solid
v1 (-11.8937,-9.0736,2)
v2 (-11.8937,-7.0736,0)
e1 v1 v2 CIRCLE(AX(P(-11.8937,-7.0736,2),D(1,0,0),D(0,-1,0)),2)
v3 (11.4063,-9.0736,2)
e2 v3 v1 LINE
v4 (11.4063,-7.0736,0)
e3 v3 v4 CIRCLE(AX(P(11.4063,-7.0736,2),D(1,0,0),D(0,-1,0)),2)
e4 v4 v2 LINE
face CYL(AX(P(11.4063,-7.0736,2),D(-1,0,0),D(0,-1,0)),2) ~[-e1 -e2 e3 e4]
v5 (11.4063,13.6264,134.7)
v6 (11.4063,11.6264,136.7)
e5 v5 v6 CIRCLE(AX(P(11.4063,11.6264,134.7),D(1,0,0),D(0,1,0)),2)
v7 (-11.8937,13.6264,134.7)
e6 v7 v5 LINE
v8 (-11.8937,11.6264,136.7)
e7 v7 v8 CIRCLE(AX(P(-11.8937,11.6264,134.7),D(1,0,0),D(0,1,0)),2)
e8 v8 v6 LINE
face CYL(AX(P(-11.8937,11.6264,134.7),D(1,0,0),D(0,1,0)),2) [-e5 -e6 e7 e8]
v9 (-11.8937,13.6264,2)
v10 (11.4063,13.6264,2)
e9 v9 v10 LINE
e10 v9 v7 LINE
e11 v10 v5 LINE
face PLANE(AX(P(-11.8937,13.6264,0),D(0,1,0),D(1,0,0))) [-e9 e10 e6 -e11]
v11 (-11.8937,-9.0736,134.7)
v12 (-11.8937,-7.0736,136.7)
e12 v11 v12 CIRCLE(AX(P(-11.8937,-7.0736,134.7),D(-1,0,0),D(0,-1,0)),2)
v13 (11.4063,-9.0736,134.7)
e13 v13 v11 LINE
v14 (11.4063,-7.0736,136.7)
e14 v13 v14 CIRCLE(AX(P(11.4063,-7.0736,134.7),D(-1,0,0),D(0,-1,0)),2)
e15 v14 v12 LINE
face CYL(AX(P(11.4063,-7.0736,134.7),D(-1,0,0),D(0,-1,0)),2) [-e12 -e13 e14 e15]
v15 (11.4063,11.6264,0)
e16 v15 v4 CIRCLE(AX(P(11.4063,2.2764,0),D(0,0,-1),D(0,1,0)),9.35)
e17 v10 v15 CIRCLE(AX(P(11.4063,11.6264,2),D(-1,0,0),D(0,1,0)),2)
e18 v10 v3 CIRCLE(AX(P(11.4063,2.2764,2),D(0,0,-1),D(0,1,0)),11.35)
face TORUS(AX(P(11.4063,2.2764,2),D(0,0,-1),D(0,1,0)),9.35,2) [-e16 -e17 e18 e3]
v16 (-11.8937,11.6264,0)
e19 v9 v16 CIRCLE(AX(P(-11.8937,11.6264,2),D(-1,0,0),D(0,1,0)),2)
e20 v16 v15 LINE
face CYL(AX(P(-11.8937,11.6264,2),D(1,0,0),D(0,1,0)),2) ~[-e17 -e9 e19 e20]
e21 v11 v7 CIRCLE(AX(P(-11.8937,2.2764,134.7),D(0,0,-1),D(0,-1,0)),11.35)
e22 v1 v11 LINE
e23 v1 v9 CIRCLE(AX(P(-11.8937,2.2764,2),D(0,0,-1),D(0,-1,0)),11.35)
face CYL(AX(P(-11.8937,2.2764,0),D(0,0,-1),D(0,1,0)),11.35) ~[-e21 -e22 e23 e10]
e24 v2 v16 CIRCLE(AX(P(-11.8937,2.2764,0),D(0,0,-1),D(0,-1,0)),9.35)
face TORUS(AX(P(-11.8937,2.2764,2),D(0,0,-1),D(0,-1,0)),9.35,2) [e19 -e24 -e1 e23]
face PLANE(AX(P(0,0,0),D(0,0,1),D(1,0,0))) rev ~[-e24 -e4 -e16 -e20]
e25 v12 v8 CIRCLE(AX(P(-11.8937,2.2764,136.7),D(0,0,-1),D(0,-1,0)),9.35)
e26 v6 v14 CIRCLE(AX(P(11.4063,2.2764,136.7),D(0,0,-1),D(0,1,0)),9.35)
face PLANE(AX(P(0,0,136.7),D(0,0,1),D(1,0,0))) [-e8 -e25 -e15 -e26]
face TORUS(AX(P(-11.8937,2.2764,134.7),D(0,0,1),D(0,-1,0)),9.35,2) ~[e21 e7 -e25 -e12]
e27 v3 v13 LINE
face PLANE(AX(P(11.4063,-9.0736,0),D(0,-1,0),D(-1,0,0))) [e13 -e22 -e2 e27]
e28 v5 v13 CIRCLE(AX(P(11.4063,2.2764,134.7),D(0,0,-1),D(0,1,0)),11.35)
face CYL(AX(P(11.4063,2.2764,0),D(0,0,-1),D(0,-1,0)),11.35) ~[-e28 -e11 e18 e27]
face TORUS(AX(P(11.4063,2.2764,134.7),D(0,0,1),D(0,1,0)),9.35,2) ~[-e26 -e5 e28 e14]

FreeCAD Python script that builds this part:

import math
import FreeCAD as App
import Part
import Sketcher


def edges_at(feature, points):
    """Names of the edges that pass closest to the given points."""
    edges = feature.Shape.Edges
    near = lambda p: min(range(len(edges)), key=lambda i: edges[i].distToShape(Part.Vertex(*p))[0])
    return sorted({f"Edge{near(p) + 1}" for p in points})

doc = App.newDocument("Part")
body = doc.addObject("PartDesign::Body", "Body")

# Sketch on XY plane
sketch1 = body.newObject("Sketcher::SketchObject", "Sketch")
sketch1.AttachmentSupport = (doc.getObject("XY_Plane"), [""])
sketch1.MapMode = "FlatFace"
sketch1.addGeometry(Part.LineSegment(App.Vector(11.4063, 13.6264, 0), App.Vector(-11.8937, 13.6264, 0)), False)
sketch1.addGeometry(Part.ArcOfCircle(Part.Circle(App.Vector(-11.8937, 2.2764, 0), App.Vector(0, 0, 1), 11.35), math.radians(90), math.radians(270)), False)
sketch1.addGeometry(Part.LineSegment(App.Vector(-11.8937, -9.0736, 0), App.Vector(11.4063, -9.0736, 0)), False)
sketch1.addGeometry(Part.ArcOfCircle(Part.Circle(App.Vector(11.4063, 2.2764, 0), App.Vector(0, 0, 1), 11.35), math.radians(-90), math.radians(90)), False)
sketch1.addConstraint(Sketcher.Constraint("Tangent", 0, 2, 1, 1))
sketch1.addConstraint(Sketcher.Constraint("Tangent", 1, 2, 2, 1))
sketch1.addConstraint(Sketcher.Constraint("Tangent", 2, 2, 3, 1))
sketch1.addConstraint(Sketcher.Constraint("Tangent", 3, 2, 0, 1))
sketch1.addConstraint(Sketcher.Constraint("Horizontal", 0))
sketch1.addConstraint(Sketcher.Constraint("Horizontal", 2))
sketch1.addConstraint(Sketcher.Constraint("Radius", 1, 11.35))
sketch1.addConstraint(Sketcher.Constraint("DistanceX", 0, 2, 0, 1, 23.3))
sketch1.addConstraint(Sketcher.Constraint("DistanceX", 1, 3, -1, 1, 11.8937))
sketch1.addConstraint(Sketcher.Constraint("DistanceY", -1, 1, 1, 3, 2.2764))
pad1 = body.newObject("PartDesign::Pad", "Pad")
pad1.Profile = sketch1
pad1.Length = 136.7
doc.recompute()

fillet = body.newObject("PartDesign::Fillet", "Fillet")
fillet.Base = (pad1, edges_at(pad1, [
    (-0.244, 13.626, 136.7),
    (-23.244, 2.276, 136.7),
    (-0.244, -9.074, 136.7),
    (22.756, 2.276, 136.7),
    (-0.244, -9.074, 0),
    (-23.244, 2.276, 0),
    (-0.244, 13.626, 0),
    (22.756, 2.276, 0),
]))
fillet.Radius = 2

doc.recompute()
